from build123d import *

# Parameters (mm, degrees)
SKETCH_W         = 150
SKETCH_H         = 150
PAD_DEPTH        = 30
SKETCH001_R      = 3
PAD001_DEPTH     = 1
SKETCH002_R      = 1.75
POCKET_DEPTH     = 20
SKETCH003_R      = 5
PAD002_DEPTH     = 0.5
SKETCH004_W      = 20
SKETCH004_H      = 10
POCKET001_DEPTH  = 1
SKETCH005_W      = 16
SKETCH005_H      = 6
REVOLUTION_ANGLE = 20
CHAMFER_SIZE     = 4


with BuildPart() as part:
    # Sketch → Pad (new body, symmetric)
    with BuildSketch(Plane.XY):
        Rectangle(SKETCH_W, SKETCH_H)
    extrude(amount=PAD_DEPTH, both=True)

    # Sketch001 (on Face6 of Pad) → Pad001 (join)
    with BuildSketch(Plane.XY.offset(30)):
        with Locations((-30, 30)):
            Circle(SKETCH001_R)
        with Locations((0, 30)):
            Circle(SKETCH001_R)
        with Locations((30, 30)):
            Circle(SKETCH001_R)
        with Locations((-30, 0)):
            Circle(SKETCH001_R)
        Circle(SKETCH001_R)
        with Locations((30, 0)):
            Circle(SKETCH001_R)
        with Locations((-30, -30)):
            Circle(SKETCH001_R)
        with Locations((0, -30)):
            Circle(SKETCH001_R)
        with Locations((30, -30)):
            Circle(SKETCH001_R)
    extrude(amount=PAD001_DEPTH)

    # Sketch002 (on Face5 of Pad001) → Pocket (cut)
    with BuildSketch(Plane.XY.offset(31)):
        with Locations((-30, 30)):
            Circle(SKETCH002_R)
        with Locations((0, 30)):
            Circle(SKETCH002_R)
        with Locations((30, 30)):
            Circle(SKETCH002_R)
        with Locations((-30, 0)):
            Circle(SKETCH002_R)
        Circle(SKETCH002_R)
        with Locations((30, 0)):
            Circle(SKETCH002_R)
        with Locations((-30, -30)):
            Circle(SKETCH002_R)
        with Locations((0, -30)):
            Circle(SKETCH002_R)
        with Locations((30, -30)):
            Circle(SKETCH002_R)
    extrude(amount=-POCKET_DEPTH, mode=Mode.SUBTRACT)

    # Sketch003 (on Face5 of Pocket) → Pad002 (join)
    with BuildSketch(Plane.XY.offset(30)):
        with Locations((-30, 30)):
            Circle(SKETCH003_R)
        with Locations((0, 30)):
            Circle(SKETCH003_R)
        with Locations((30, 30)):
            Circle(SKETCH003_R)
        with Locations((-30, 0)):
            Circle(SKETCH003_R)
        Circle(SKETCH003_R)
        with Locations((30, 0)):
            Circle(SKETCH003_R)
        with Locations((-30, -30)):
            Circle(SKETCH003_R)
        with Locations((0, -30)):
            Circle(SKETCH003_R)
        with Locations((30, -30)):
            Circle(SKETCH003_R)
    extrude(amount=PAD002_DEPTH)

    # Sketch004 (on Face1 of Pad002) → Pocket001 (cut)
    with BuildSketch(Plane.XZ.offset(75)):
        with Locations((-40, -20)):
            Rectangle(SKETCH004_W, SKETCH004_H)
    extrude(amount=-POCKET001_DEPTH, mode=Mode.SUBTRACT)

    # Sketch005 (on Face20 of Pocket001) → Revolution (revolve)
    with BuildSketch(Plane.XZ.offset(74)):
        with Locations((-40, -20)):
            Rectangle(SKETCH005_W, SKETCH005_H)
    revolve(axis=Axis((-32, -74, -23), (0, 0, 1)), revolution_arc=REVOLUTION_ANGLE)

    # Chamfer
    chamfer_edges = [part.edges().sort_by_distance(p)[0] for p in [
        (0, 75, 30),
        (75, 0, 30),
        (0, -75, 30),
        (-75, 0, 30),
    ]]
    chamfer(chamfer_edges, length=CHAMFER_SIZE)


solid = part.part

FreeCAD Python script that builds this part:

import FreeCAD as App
import Part
import Sketcher
from FreeCAD import Vector
Q = App.Units.Quantity


def edges_at(feature, points):
    """Names of the edges that pass closest to the given points."""
    edges = feature.Shape.Edges
    near = lambda p: min(range(len(edges)), key=lambda i: edges[i].distToShape(Part.Vertex(*p))[0])
    return sorted({f"Edge{near(p) + 1}" for p in points})


def add_polygon(sketch, points):
    """Adds a closed chain of lines whose ends are joined by coincident constraints."""
    first, n = sketch.GeometryCount, len(points)
    for a, b in zip(points, points[1:] + points[:1]):
        sketch.addGeometry(Part.LineSegment(App.Vector(*a, 0), App.Vector(*b, 0)), False)
    for i in range(n):
        sketch.addConstraint(Sketcher.Constraint("Coincident", first + i, 2, first + (i + 1) % n, 1))

doc = App.newDocument("Part")
body = doc.addObject("PartDesign::Body", "Body")

sketch1 = body.newObject("Sketcher::SketchObject", "Sketch")
sketch1.AttachmentSupport = (doc.getObject("XY_Plane"), [""])
sketch1.MapMode = "FlatFace"
add_polygon(sketch1, [(-75, 75), (-75, -75), (75, -75), (75, 75)])
sketch1.addConstraint(Sketcher.Constraint("Vertical", 0))
sketch1.addConstraint(Sketcher.Constraint("Horizontal", 1))
sketch1.addConstraint(Sketcher.Constraint("Vertical", 2))
sketch1.addConstraint(Sketcher.Constraint("Horizontal", 3))
sketch1.addConstraint(Sketcher.Constraint("Symmetric", 0, 2, 2, 2, -1, 1))
sketch1.addConstraint(Sketcher.Constraint("Equal", 3, 0))
sketch1.addConstraint(Sketcher.Constraint("DistanceX", 1, 1, 1, 2, Q("150 mm")))
pad1 = body.newObject("PartDesign::Pad", "Pad")
pad1.Profile = sketch1
pad1.Length = 60
pad1.Midplane = True

sketch2 = body.newObject("Sketcher::SketchObject", "Sketch001")
sketch2.AttachmentSupport = (doc.getObject("XY_Plane"), [""])
sketch2.MapMode = "FlatFace"
sketch2.AttachmentOffset = App.Placement(Vector(0, 0, 30), App.Rotation())
sketch2.addGeometry(Part.Circle(Vector(-30, 30, 0), Vector(0, 0, 1), 3), False)
sketch2.addGeometry(Part.Circle(Vector(0, 30, 0), Vector(0, 0, 1), 3), False)
sketch2.addGeometry(Part.Circle(Vector(30, 30, 0), Vector(0, 0, 1), 3), False)
sketch2.addGeometry(Part.Circle(Vector(-30, 0, 0), Vector(0, 0, 1), 3), False)
sketch2.addGeometry(Part.Circle(Vector(0, 0, 0), Vector(0, 0, 1), 3), False)
sketch2.addGeometry(Part.Circle(Vector(30, 0, 0), Vector(0, 0, 1), 3), False)
sketch2.addGeometry(Part.Circle(Vector(-30, -30, 0), Vector(0, 0, 1), 3), False)
sketch2.addGeometry(Part.Circle(Vector(0, -30, 0), Vector(0, 0, 1), 3), False)
sketch2.addGeometry(Part.Circle(Vector(30, -30, 0), Vector(0, 0, 1), 3), False)
sketch2.addConstraint(Sketcher.Constraint("Coincident", 4, 3, -1, 1))
sketch2.addConstraint(Sketcher.Constraint("Equal", 0, 1))
sketch2.addConstraint(Sketcher.Constraint("Equal", 1, 2))
sketch2.addConstraint(Sketcher.Constraint("Equal", 2, 3))
sketch2.addConstraint(Sketcher.Constraint("Equal", 3, 4))
sketch2.addConstraint(Sketcher.Constraint("Equal", 4, 5))
sketch2.addConstraint(Sketcher.Constraint("Equal", 5, 6))
sketch2.addConstraint(Sketcher.Constraint("Equal", 6, 7))
sketch2.addConstraint(Sketcher.Constraint("Equal", 7, 8))
sketch2.addConstraint(Sketcher.Constraint("Symmetric", 3, 3, 5, 3, -1, 1))
sketch2.addConstraint(Sketcher.Constraint("Symmetric", 2, 3, 6, 3, -1, 1))
sketch2.addConstraint(Sketcher.Constraint("Symmetric", 1, 3, 7, 3, -1, 1))
sketch2.addConstraint(Sketcher.Constraint("Symmetric", 0, 3, 8, 3, -1, 1))
sketch2.addConstraint(Sketcher.Constraint("Symmetric", 0, 3, 2, 3, -2))
sketch2.addConstraint(Sketcher.Constraint("PointOnObject", 1, 3, -2))
sketch2.addConstraint(Sketcher.Constraint("PointOnObject", 3, 3, -1))
sketch2.addConstraint(Sketcher.Constraint("Horizontal", 0, 3, 1, 3))
sketch2.addConstraint(Sketcher.Constraint("Vertical", 0, 3, 3, 3))
sketch2.addConstraint(Sketcher.Constraint("Diameter", 0, Q("6 mm")))
sketch2.addConstraint(Sketcher.Constraint("DistanceX", 0, 3, -1, 1, Q("30 mm")))
sketch2.addConstraint(Sketcher.Constraint("DistanceY", -1, 1, 0, 3, Q("30 mm")))
pad2 = body.newObject("PartDesign::Pad", "Pad001")
pad2.Profile = sketch2
pad2.Length = 1

sketch3 = body.newObject("Sketcher::SketchObject", "Sketch002")
sketch3.AttachmentSupport = (doc.getObject("XY_Plane"), [""])
sketch3.MapMode = "FlatFace"
sketch3.AttachmentOffset = App.Placement(Vector(0, 0, 31), App.Rotation())
sketch3.addGeometry(Part.Circle(Vector(-30, 30, 0), Vector(0, 0, 1), 1.75), False)
sketch3.addGeometry(Part.Circle(Vector(0, 30, 0), Vector(0, 0, 1), 1.75), False)
sketch3.addGeometry(Part.Circle(Vector(30, 30, 0), Vector(0, 0, 1), 1.75), False)
sketch3.addGeometry(Part.Circle(Vector(-30, 0, 0), Vector(0, 0, 1), 1.75), False)
sketch3.addGeometry(Part.Circle(Vector(0, 0, 0), Vector(0, 0, 1), 1.75), False)
sketch3.addGeometry(Part.Circle(Vector(30, 0, 0), Vector(0, 0, 1), 1.75), False)
sketch3.addGeometry(Part.Circle(Vector(-30, -30, 0), Vector(0, 0, 1), 1.75), False)
sketch3.addGeometry(Part.Circle(Vector(0, -30, 0), Vector(0, 0, 1), 1.75), False)
sketch3.addGeometry(Part.Circle(Vector(30, -30, 0), Vector(0, 0, 1), 1.75), False)
sketch3.addConstraint(Sketcher.Constraint("Coincident", 4, 3, -1, 1))
sketch3.addConstraint(Sketcher.Constraint("Equal", 0, 1))
sketch3.addConstraint(Sketcher.Constraint("Equal", 1, 2))
sketch3.addConstraint(Sketcher.Constraint("Equal", 2, 3))
sketch3.addConstraint(Sketcher.Constraint("Equal", 3, 4))
sketch3.addConstraint(Sketcher.Constraint("Equal", 4, 5))
sketch3.addConstraint(Sketcher.Constraint("Equal", 5, 6))
sketch3.addConstraint(Sketcher.Constraint("Equal", 6, 7))
sketch3.addConstraint(Sketcher.Constraint("Equal", 7, 8))
sketch3.addConstraint(Sketcher.Constraint("Symmetric", 3, 3, 5, 3, -1, 1))
sketch3.addConstraint(Sketcher.Constraint("Symmetric", 2, 3, 6, 3, -1, 1))
sketch3.addConstraint(Sketcher.Constraint("Symmetric", 1, 3, 7, 3, -1, 1))
sketch3.addConstraint(Sketcher.Constraint("Symmetric", 0, 3, 8, 3, -1, 1))
sketch3.addConstraint(Sketcher.Constraint("Symmetric", 0, 3, 2, 3, -2))
sketch3.addConstraint(Sketcher.Constraint("PointOnObject", 1, 3, -2))
sketch3.addConstraint(Sketcher.Constraint("PointOnObject", 3, 3, -1))
sketch3.addConstraint(Sketcher.Constraint("Horizontal", 0, 3, 1, 3))
sketch3.addConstraint(Sketcher.Constraint("Vertical", 0, 3, 3, 3))
sketch3.addConstraint(Sketcher.Constraint("Diameter", 0, Q("3.5 mm")))
sketch3.addConstraint(Sketcher.Constraint("DistanceX", 0, 3, -1, 1, Q("30 mm")))
sketch3.addConstraint(Sketcher.Constraint("DistanceY", -1, 1, 0, 3, Q("30 mm")))
pocket1 = body.newObject("PartDesign::Pocket", "Pocket")
pocket1.Profile = sketch3
pocket1.Length = 20

sketch4 = body.newObject("Sketcher::SketchObject", "Sketch003")
sketch4.AttachmentSupport = (doc.getObject("XY_Plane"), [""])
sketch4.MapMode = "FlatFace"
sketch4.AttachmentOffset = App.Placement(Vector(0, 0, 30), App.Rotation())
sketch4.addGeometry(Part.Circle(Vector(-30, 30, 0), Vector(0, 0, 1), 5), False)
sketch4.addGeometry(Part.Circle(Vector(0, 30, 0), Vector(0, 0, 1), 5), False)
sketch4.addGeometry(Part.Circle(Vector(30, 30, 0), Vector(0, 0, 1), 5), False)
sketch4.addGeometry(Part.Circle(Vector(-30, 0, 0), Vector(0, 0, 1), 5), False)
sketch4.addGeometry(Part.Circle(Vector(0, 0, 0), Vector(0, 0, 1), 5), False)
sketch4.addGeometry(Part.Circle(Vector(30, 0, 0), Vector(0, 0, 1), 5), False)
sketch4.addGeometry(Part.Circle(Vector(-30, -30, 0), Vector(0, 0, 1), 5), False)
sketch4.addGeometry(Part.Circle(Vector(0, -30, 0), Vector(0, 0, 1), 5), False)
sketch4.addGeometry(Part.Circle(Vector(30, -30, 0), Vector(0, 0, 1), 5), False)
sketch4.addConstraint(Sketcher.Constraint("Coincident", 4, 3, -1, 1))
sketch4.addConstraint(Sketcher.Constraint("Equal", 0, 1))
sketch4.addConstraint(Sketcher.Constraint("Equal", 1, 2))
sketch4.addConstraint(Sketcher.Constraint("Equal", 2, 3))
sketch4.addConstraint(Sketcher.Constraint("Equal", 3, 4))
sketch4.addConstraint(Sketcher.Constraint("Equal", 4, 5))
sketch4.addConstraint(Sketcher.Constraint("Equal", 5, 6))
sketch4.addConstraint(Sketcher.Constraint("Equal", 6, 7))
sketch4.addConstraint(Sketcher.Constraint("Equal", 7, 8))
sketch4.addConstraint(Sketcher.Constraint("Symmetric", 3, 3, 5, 3, -1, 1))
sketch4.addConstraint(Sketcher.Constraint("Symmetric", 2, 3, 6, 3, -1, 1))
sketch4.addConstraint(Sketcher.Constraint("Symmetric", 1, 3, 7, 3, -1, 1))
sketch4.addConstraint(Sketcher.Constraint("Symmetric", 0, 3, 8, 3, -1, 1))
sketch4.addConstraint(Sketcher.Constraint("Symmetric", 0, 3, 2, 3, -2))
sketch4.addConstraint(Sketcher.Constraint("PointOnObject", 1, 3, -2))
sketch4.addConstraint(Sketcher.Constraint("PointOnObject", 3, 3, -1))
sketch4.addConstraint(Sketcher.Constraint("Horizontal", 0, 3, 1, 3))
sketch4.addConstraint(Sketcher.Constraint("Vertical", 0, 3, 3, 3))
sketch4.addConstraint(Sketcher.Constraint("Diameter", 0, Q("10 mm")))
sketch4.addConstraint(Sketcher.Constraint("DistanceX", 0, 3, -1, 1, Q("30 mm")))
sketch4.addConstraint(Sketcher.Constraint("DistanceY", -1, 1, 0, 3, Q("30 mm")))
pad3 = body.newObject("PartDesign::Pad", "Pad002")
pad3.Profile = sketch4
pad3.Length = 0.5

sketch5 = body.newObject("Sketcher::SketchObject", "Sketch004")
sketch5.AttachmentSupport = (doc.getObject("XZ_Plane"), [""])
sketch5.MapMode = "FlatFace"
sketch5.AttachmentOffset = App.Placement(Vector(0, 0, 75), App.Rotation())
add_polygon(sketch5, [(-50, -15), (-50, -25), (-30, -25), (-30, -15)])
sketch5.addConstraint(Sketcher.Constraint("Vertical", 0))
sketch5.addConstraint(Sketcher.Constraint("Horizontal", 1))
sketch5.addConstraint(Sketcher.Constraint("Vertical", 2))
sketch5.addConstraint(Sketcher.Constraint("Horizontal", 3))
sketch5.addConstraint(Sketcher.Constraint("DistanceX", 1, 1, 1, 2, Q("20 mm")))
sketch5.addConstraint(Sketcher.Constraint("DistanceY", 0, 2, 0, 1, Q("10 mm")))
sketch5.addConstraint(Sketcher.Constraint("DistanceX", 0, 2, -1, 1, Q("50 mm")))
sketch5.addConstraint(Sketcher.Constraint("DistanceY", 0, 2, -1, 1, Q("25 mm")))
pocket2 = body.newObject("PartDesign::Pocket", "Pocket001")
pocket2.Profile = sketch5
pocket2.Length = 1

sketch6 = body.newObject("Sketcher::SketchObject", "Sketch005")
sketch6.AttachmentSupport = (doc.getObject("XZ_Plane"), [""])
sketch6.MapMode = "FlatFace"
sketch6.AttachmentOffset = App.Placement(Vector(0, 0, 74), App.Rotation())
add_polygon(sketch6, [(-48, -17), (-48, -23), (-32, -23), (-32, -17)])
sketch6.addGeometry(Part.LineSegment(Vector(-32, -23, 0), Vector(-32, -17, 0)), True)
sketch6.addConstraint(Sketcher.Constraint("Vertical", 0))
sketch6.addConstraint(Sketcher.Constraint("Horizontal", 1))
sketch6.addConstraint(Sketcher.Constraint("Vertical", 2))
sketch6.addConstraint(Sketcher.Constraint("Horizontal", 3))
sketch6.addConstraint(Sketcher.Constraint("Vertical", 4))
sketch6.addConstraint(Sketcher.Constraint("Coincident", 4, 1, 1, 2))
sketch6.addConstraint(Sketcher.Constraint("Horizontal", 3, 2, 4, 2))
sketch6.addConstraint(Sketcher.Constraint("DistanceX", 1, 1, 1, 2, Q("16 mm")))
sketch6.addConstraint(Sketcher.Constraint("DistanceY", 0, 2, 0, 1, Q("6 mm")))
sketch6.addConstraint(Sketcher.Constraint("DistanceX", 0, 2, -1, 1, Q("48 mm")))
sketch6.addConstraint(Sketcher.Constraint("DistanceY", 0, 2, -1, 1, Q("23 mm")))
revolution = body.newObject("PartDesign::Revolution", "Revolution")
revolution.Profile = sketch6
revolution.ReferenceAxis = (sketch6, ["Axis0"])
revolution.Angle = 20
doc.recompute()

chamfer = body.newObject("PartDesign::Chamfer", "Chamfer")
chamfer.Base = (revolution, edges_at(revolution, [
    (0, 75, 30),
    (75, 0, 30),
    (0, -75, 30),
    (-75, 0, 30),
]))
chamfer.Size = 4

doc.recompute()
